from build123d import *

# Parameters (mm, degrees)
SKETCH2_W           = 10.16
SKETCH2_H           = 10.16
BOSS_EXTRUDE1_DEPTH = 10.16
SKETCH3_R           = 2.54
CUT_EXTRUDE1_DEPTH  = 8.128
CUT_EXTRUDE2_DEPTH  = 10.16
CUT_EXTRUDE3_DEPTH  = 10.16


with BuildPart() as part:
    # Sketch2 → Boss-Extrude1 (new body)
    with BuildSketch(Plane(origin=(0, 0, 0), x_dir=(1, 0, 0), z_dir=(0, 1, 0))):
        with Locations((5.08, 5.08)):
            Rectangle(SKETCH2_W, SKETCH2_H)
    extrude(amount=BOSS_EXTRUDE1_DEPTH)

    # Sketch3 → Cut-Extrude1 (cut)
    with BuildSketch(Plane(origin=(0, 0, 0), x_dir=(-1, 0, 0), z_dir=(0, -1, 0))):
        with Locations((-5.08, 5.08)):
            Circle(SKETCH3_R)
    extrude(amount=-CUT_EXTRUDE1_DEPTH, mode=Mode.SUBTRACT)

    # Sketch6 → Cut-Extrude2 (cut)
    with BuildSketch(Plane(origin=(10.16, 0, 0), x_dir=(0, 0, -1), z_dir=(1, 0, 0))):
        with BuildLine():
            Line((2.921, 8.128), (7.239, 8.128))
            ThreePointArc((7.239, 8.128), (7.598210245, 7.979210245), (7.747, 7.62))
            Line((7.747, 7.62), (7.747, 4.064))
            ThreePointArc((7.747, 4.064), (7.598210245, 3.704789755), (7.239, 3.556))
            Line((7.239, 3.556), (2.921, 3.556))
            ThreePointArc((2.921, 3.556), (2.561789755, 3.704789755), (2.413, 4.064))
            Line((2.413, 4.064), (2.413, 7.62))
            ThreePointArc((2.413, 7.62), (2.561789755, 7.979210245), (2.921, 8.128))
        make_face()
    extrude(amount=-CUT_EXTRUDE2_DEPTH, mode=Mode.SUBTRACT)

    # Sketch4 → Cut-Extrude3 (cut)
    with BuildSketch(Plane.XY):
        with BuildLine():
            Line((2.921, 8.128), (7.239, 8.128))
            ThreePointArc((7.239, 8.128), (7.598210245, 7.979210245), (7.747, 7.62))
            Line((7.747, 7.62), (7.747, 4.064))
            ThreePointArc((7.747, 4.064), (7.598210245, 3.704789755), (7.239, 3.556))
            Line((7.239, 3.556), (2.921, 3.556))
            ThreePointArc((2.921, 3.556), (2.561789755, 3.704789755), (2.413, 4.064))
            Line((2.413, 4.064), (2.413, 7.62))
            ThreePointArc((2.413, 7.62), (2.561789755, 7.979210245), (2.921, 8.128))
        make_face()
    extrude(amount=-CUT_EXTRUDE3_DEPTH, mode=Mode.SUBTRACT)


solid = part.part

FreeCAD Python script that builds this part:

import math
import FreeCAD as App
import Part
import Sketcher
Q = App.Units.Quantity

doc = App.newDocument("Part")
params = doc.addObject("Spreadsheet::Sheet", "Params")
for row, (alias, value) in enumerate([
    ("sketch1_width", "0.4 in"),
    ("pad1_length", "0.4 in"),
    ("sketch2_diameter", "0.2 in"),
    ("pocket1_length", "0.32 in"),
    ("sketch3_radius", "0.02 in"),
    ("sketch3_width", "0.14 in"),
    ("sketch3_height", "0.17 in"),
    ("pocket2_length", "0.4 in"),
    ("sketch4_radius", "0.02 in"),
    ("sketch4_width", "0.17 in"),
    ("sketch4_height", "0.14 in"),
    ("pocket3_length", "0.4 in"),
], start=1):
    params.set(f"A{row}", alias)
    params.set(f"B{row}", "=" + value)
    params.setAlias(f"B{row}", alias)

body = doc.addObject("PartDesign::Body", "Body")

# Sketch on XZ plane
sketch1 = doc.addObject("Sketcher::SketchObject", "Sketch")
body.addObject(sketch1)
sketch1.AttachmentSupport = (doc.XZ_Plane, [""])
sketch1.MapMode = "FlatFace"
sketch1.addGeometry([
    Part.LineSegment(App.Vector(0, -10, 0), App.Vector(0, 0, 0)),
    Part.LineSegment(App.Vector(0, 0, 0), App.Vector(10, 0, 0)),
    Part.LineSegment(App.Vector(10, 0, 0), App.Vector(10, -10, 0)),
    Part.LineSegment(App.Vector(10, -10, 0), App.Vector(0, -10, 0)),
], False)
sketch1.addConstraint([
    Sketcher.Constraint("Coincident", 0, 2, 1, 1),
    Sketcher.Constraint("Coincident", 1, 2, 2, 1),
    Sketcher.Constraint("Coincident", 2, 2, 3, 1),
    Sketcher.Constraint("Coincident", 3, 2, 0, 1),
    Sketcher.Constraint("Vertical", 0),
    Sketcher.Constraint("Horizontal", 1),
    Sketcher.Constraint("Vertical", 2),
    Sketcher.Constraint("Horizontal", 3),
    Sketcher.Constraint("Coincident", 0, 2, -1, 1),
    Sketcher.Constraint("Equal", 3, 0),
    Sketcher.Constraint("DistanceX", 1, 1, 1, 2, Q("0.4 in")),
])
sketch1.setExpression("Constraints[10]", "Params.sketch1_width")
pad1 = doc.addObject("PartDesign::Pad", "Pad")
body.addObject(pad1)
pad1.Profile = sketch1
pad1.setExpression("Length", "Params.pad1_length")
pad1.Reversed = True

# Sketch on XZ plane
sketch2 = doc.addObject("Sketcher::SketchObject", "Sketch001")
body.addObject(sketch2)
sketch2.AttachmentSupport = (doc.XZ_Plane, [""])
sketch2.MapMode = "FlatFace"
sketch2.addGeometry(Part.Circle(App.Vector(5.1, -5.1, 0), App.Vector(0, 0, 1), 2.5), False)
sketch2.addConstraint([
    Sketcher.Constraint("Diameter", 0, Q("0.2 in")),
    Sketcher.Constraint("DistanceX", -1, 1, 0, 3, Q("0.2 in")),
    Sketcher.Constraint("DistanceY", 0, 3, -1, 1, Q("0.2 in")),
])
sketch2.setExpression("Constraints[0]", "Params.sketch2_diameter")
pocket1 = doc.addObject("PartDesign::Pocket", "Pocket")
body.addObject(pocket1)
pocket1.Profile = sketch2
pocket1.setExpression("Length", "Params.pocket1_length")

# Sketch on YZ plane
sketch3 = doc.addObject("Sketcher::SketchObject", "Sketch002")
body.addObject(sketch3)
sketch3.AttachmentSupport = (doc.YZ_Plane, [""])
sketch3.MapMode = "FlatFace"
sketch3.AttachmentOffset = App.Placement(App.Vector(0, 0, 0.4 * 25.4), App.Rotation())
sketch3.addGeometry([
    Part.LineSegment(App.Vector(8.1, -7.2, 0), App.Vector(8.1, -2.9, 0)),  # 0
    Part.ArcOfCircle(Part.Circle(App.Vector(7.6, -2.9, 0), App.Vector(0, 0, 1), 0.5), math.radians(0), math.radians(90)),  # 1
    Part.LineSegment(App.Vector(7.6, -2.4, 0), App.Vector(4.1, -2.4, 0)),  # 2
    Part.ArcOfCircle(Part.Circle(App.Vector(4.1, -2.9, 0), App.Vector(0, 0, 1), 0.5), math.radians(90), math.radians(180)),  # 3
    Part.LineSegment(App.Vector(3.6, -2.9, 0), App.Vector(3.6, -7.2, 0)),  # 4
    Part.ArcOfCircle(Part.Circle(App.Vector(4.1, -7.2, 0), App.Vector(0, 0, 1), 0.5), math.radians(180), math.radians(270)),  # 5
    Part.LineSegment(App.Vector(4.1, -7.7, 0), App.Vector(7.6, -7.7, 0)),  # 6
    Part.ArcOfCircle(Part.Circle(App.Vector(7.6, -7.2, 0), App.Vector(0, 0, 1), 0.5), math.radians(-90), math.radians(0)),  # 7
], False)
sketch3.addConstraint([
    Sketcher.Constraint("Tangent", 0, 2, 1, 1),
    Sketcher.Constraint("Tangent", 1, 2, 2, 1),
    Sketcher.Constraint("Tangent", 2, 2, 3, 1),
    Sketcher.Constraint("Tangent", 3, 2, 4, 1),
    Sketcher.Constraint("Tangent", 4, 2, 5, 1),
    Sketcher.Constraint("Tangent", 5, 2, 6, 1),
    Sketcher.Constraint("Tangent", 6, 2, 7, 1),
    Sketcher.Constraint("Tangent", 7, 2, 0, 1),
    Sketcher.Constraint("Vertical", 0),
    Sketcher.Constraint("Horizontal", 2),
    Sketcher.Constraint("Vertical", 4),
    Sketcher.Constraint("Horizontal", 6),
    Sketcher.Constraint("Equal", 1, 3),
    Sketcher.Constraint("Equal", 3, 5),
    Sketcher.Constraint("Equal", 5, 7),
    Sketcher.Constraint("Radius", 1, Q("0.02 in")),
    Sketcher.Constraint("DistanceX", 2, 2, 2, 1, Q("0.14 in")),
    Sketcher.Constraint("DistanceY", 0, 1, 0, 2, Q("0.17 in")),
    Sketcher.Constraint("DistanceX", -1, 1, 1, 3, Q("0.3 in")),
    Sketcher.Constraint("DistanceY", 1, 3, -1, 1, Q("0.115 in")),
])
sketch3.setExpression("Constraints[15]", "Params.sketch3_radius")
sketch3.setExpression("Constraints[16]", "Params.sketch3_width")
sketch3.setExpression("Constraints[17]", "Params.sketch3_height")
pocket2 = doc.addObject("PartDesign::Pocket", "Pocket001")
body.addObject(pocket2)
pocket2.Profile = sketch3
pocket2.setExpression("Length", "Params.pocket2_length")

# Sketch on XY plane
sketch4 = doc.addObject("Sketcher::SketchObject", "Sketch003")
body.addObject(sketch4)
sketch4.AttachmentSupport = (doc.XY_Plane, [""])
sketch4.MapMode = "FlatFace"
sketch4.addGeometry([
    Part.LineSegment(App.Vector(7.2, 8.1, 0), App.Vector(2.9, 8.1, 0)),  # 0
    Part.ArcOfCircle(Part.Circle(App.Vector(2.9, 7.6, 0), App.Vector(0, 0, 1), 0.5), math.radians(90), math.radians(180)),  # 1
    Part.LineSegment(App.Vector(2.4, 7.6, 0), App.Vector(2.4, 4.1, 0)),  # 2
    Part.ArcOfCircle(Part.Circle(App.Vector(2.9, 4.1, 0), App.Vector(0, 0, 1), 0.5), math.radians(180), math.radians(270)),  # 3
    Part.LineSegment(App.Vector(2.9, 3.6, 0), App.Vector(7.2, 3.6, 0)),  # 4
    Part.ArcOfCircle(Part.Circle(App.Vector(7.2, 4.1, 0), App.Vector(0, 0, 1), 0.5), math.radians(-90), math.radians(0)),  # 5
    Part.LineSegment(App.Vector(7.7, 4.1, 0), App.Vector(7.7, 7.6, 0)),  # 6
    Part.ArcOfCircle(Part.Circle(App.Vector(7.2, 7.6, 0), App.Vector(0, 0, 1), 0.5), math.radians(0), math.radians(90)),  # 7
], False)
sketch4.addConstraint([
    Sketcher.Constraint("Tangent", 0, 2, 1, 1),
    Sketcher.Constraint("Tangent", 1, 2, 2, 1),
    Sketcher.Constraint("Tangent", 2, 2, 3, 1),
    Sketcher.Constraint("Tangent", 3, 2, 4, 1),
    Sketcher.Constraint("Tangent", 4, 2, 5, 1),
    Sketcher.Constraint("Tangent", 5, 2, 6, 1),
    Sketcher.Constraint("Tangent", 6, 2, 7, 1),
    Sketcher.Constraint("Tangent", 7, 2, 0, 1),
    Sketcher.Constraint("Horizontal", 0),
    Sketcher.Constraint("Vertical", 2),
    Sketcher.Constraint("Horizontal", 4),
    Sketcher.Constraint("Vertical", 6),
    Sketcher.Constraint("Equal", 1, 3),
    Sketcher.Constraint("Equal", 3, 5),
    Sketcher.Constraint("Equal", 5, 7),
    Sketcher.Constraint("Radius", 1, Q("0.02 in")),
    Sketcher.Constraint("DistanceX", 0, 2, 0, 1, Q("0.17 in")),
    Sketcher.Constraint("DistanceY", 2, 2, 2, 1, Q("0.14 in")),
    Sketcher.Constraint("DistanceY", -1, 1, 1, 3, Q("0.3 in")),
    Sketcher.Constraint("DistanceX", -1, 1, 1, 3, Q("0.115 in")),
])
sketch4.setExpression("Constraints[15]", "Params.sketch4_radius")
sketch4.setExpression("Constraints[16]", "Params.sketch4_width")
sketch4.setExpression("Constraints[17]", "Params.sketch4_height")
pocket3 = doc.addObject("PartDesign::Pocket", "Pocket002")
body.addObject(pocket3)
pocket3.Profile = sketch4
pocket3.setExpression("Length", "Params.pocket3_length")

doc.recompute()
